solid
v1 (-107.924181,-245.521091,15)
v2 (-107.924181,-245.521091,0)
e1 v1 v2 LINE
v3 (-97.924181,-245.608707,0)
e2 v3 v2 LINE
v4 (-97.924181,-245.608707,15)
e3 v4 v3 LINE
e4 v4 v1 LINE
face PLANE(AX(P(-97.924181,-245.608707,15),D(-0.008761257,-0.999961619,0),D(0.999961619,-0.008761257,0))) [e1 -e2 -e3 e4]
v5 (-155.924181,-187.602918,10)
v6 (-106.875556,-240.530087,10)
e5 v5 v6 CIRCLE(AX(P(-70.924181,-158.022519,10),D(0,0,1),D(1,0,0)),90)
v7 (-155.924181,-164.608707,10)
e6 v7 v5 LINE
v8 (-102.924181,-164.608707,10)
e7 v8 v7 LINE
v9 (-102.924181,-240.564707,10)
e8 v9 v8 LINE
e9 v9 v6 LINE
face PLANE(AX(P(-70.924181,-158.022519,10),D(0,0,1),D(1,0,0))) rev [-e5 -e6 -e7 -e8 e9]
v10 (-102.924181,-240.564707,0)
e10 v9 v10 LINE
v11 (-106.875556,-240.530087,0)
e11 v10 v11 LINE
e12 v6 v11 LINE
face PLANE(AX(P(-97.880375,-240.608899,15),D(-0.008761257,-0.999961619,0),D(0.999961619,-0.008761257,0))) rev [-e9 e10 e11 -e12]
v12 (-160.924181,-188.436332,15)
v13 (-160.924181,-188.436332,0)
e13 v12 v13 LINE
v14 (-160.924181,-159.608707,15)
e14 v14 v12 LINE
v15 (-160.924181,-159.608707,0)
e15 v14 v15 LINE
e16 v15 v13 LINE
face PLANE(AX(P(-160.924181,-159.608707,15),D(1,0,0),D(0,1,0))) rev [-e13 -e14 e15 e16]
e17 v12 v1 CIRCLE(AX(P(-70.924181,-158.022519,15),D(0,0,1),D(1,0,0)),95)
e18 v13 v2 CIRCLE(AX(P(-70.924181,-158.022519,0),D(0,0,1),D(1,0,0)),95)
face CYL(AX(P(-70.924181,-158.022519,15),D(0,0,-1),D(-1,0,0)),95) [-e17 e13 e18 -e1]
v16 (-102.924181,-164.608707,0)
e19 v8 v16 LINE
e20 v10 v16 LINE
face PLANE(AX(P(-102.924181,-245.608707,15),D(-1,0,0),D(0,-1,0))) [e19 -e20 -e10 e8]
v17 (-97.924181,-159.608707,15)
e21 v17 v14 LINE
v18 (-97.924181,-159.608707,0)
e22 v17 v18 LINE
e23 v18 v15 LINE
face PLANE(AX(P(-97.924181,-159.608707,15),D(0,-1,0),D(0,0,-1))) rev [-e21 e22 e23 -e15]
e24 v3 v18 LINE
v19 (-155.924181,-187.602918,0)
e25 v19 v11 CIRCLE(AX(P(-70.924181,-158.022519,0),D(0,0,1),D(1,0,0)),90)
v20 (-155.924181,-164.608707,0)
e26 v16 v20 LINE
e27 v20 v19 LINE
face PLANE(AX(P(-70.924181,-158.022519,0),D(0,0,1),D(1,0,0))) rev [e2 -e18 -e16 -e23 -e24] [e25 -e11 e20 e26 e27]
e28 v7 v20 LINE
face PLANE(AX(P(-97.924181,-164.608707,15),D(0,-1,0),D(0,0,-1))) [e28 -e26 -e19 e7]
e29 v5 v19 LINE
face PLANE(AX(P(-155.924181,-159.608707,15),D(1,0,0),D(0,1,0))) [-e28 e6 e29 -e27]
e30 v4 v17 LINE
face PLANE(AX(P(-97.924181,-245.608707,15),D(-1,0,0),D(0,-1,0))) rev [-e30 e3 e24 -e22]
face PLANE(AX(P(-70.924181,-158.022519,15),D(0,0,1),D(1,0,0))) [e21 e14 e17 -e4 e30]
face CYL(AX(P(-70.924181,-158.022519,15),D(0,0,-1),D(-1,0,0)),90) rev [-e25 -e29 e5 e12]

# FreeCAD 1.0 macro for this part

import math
import FreeCAD as App
import Part
import Sketcher

V = App.Vector


def faces_at(feature, points):
    """Names of the faces that lie closest to the given points."""
    faces = feature.Shape.Faces
    near = lambda p: min(range(len(faces)), key=lambda i: faces[i].distToShape(Part.Vertex(*p))[0])
    return sorted({f"Face{near(p) + 1}" for p in points})

doc = App.newDocument("Part")
body = doc.addObject("PartDesign::Body", "Body")

# Sketch on XY plane
sketch1 = body.newObject("Sketcher::SketchObject", "Sketch")
sketch1.AttachmentSupport = (doc.getObject("XY_Plane"), [""])
sketch1.MapMode = "FlatFace"
sketch1.addGeometry([
    Part.LineSegment(V(-108, -246, 0), V(-98, -246, 0)),  # 0
    Part.LineSegment(V(-98, -246, 0), V(-98, -160, 0)),  # 1
    Part.LineSegment(V(-98, -160, 0), V(-161, -160, 0)),  # 2
    Part.LineSegment(V(-161, -160, 0), V(-161, -188, 0)),  # 3
    Part.ArcOfCircle(Part.Circle(V(-71, -158, 0), V(0, 0, 1), 95), math.radians(-161), math.radians(-113)),  # 4
], False)
sketch1.addConstraint([
    Sketcher.Constraint("Coincident", 0, 2, 1, 1),
    Sketcher.Constraint("Coincident", 1, 2, 2, 1),
    Sketcher.Constraint("Coincident", 2, 2, 3, 1),
    Sketcher.Constraint("Coincident", 3, 2, 4, 1),
    Sketcher.Constraint("Coincident", 4, 2, 0, 1),
    Sketcher.Constraint("Vertical", 1),
    Sketcher.Constraint("Horizontal", 2),
    Sketcher.Constraint("Vertical", 3),
    Sketcher.Constraint("Radius", 4, 95.0),
    Sketcher.Constraint("DistanceX", 2, 2, 2, 1, 63.0),
    Sketcher.Constraint("DistanceY", 1, 1, 1, 2, 86.0),
    Sketcher.Constraint("DistanceX", 0, 2, 4, 3, 27.0),
    Sketcher.Constraint("DistanceX", 4, 2, 0, 2, 10.0),
    Sketcher.Constraint("DistanceY", 3, 2, 3, 1, 28.827625),
    Sketcher.Constraint("DistanceX", 4, 3, -1, 1, 70.924181),
    Sketcher.Constraint("DistanceY", 4, 3, -1, 1, 158.022519),
])
pad1 = body.newObject("PartDesign::Pad", "Pad")
pad1.Profile = sketch1
pad1.Length = 15
doc.recompute()

thickness = body.newObject("PartDesign::Thickness", "Thickness")
thickness.Base = (pad1, faces_at(pad1, [(-129.424, -202.609, 0)]))
thickness.Value = 5
thickness.Reversed = True
thickness.Join = "Intersection"

doc.recompute()
